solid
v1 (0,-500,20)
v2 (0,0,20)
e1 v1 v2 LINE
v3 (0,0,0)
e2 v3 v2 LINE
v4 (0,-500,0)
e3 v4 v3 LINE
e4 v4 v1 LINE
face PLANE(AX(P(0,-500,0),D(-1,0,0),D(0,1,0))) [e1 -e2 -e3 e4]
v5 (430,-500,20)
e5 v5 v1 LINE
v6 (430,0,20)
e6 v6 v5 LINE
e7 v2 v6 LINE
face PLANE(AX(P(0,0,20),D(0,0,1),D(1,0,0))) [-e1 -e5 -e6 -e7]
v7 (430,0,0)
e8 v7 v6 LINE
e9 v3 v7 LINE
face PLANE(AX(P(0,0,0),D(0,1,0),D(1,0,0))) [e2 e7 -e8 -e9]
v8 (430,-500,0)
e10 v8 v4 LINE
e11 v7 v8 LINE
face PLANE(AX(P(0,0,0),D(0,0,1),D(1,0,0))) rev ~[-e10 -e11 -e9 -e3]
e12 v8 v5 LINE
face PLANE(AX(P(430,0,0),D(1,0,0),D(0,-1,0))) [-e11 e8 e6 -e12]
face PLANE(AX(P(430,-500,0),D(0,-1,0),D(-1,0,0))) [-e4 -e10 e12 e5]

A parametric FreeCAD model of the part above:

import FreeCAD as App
import Part
import Sketcher


def add_polygon(sketch, points):
    """Adds a closed chain of lines whose ends are joined by coincident constraints."""
    first, n = sketch.GeometryCount, len(points)
    for a, b in zip(points, points[1:] + points[:1]):
        sketch.addGeometry(Part.LineSegment(App.Vector(*a, 0), App.Vector(*b, 0)), False)
    for i in range(n):
        sketch.addConstraint(Sketcher.Constraint("Coincident", first + i, 2, first + (i + 1) % n, 1))

doc = App.newDocument("Part")
body = doc.addObject("PartDesign::Body", "Body")

# Sketch on XY plane
sketch1 = doc.addObject("Sketcher::SketchObject", "Sketch")
body.addObject(sketch1)
sketch1.AttachmentSupport = (doc.XY_Plane, [""])
sketch1.MapMode = "FlatFace"
add_polygon(sketch1, [(430, 0), (0, 0), (0, -500), (430, -500)])  # lines 0-3
sketch1.addConstraint([
    Sketcher.Constraint("Horizontal", 0),
    Sketcher.Constraint("Vertical", 1),
    Sketcher.Constraint("Horizontal", 2),
    Sketcher.Constraint("Vertical", 3),
    Sketcher.Constraint("Coincident", 0, 2, -1, 1),
    Sketcher.Constraint("DistanceX", 0, 2, 0, 1, 430.0),
    Sketcher.Constraint("DistanceY", 1, 2, 1, 1, 500.0),
])
pad1 = doc.addObject("PartDesign::Pad", "Pad")
body.addObject(pad1)
pad1.Profile = sketch1
pad1.Length = 20

doc.recompute()
